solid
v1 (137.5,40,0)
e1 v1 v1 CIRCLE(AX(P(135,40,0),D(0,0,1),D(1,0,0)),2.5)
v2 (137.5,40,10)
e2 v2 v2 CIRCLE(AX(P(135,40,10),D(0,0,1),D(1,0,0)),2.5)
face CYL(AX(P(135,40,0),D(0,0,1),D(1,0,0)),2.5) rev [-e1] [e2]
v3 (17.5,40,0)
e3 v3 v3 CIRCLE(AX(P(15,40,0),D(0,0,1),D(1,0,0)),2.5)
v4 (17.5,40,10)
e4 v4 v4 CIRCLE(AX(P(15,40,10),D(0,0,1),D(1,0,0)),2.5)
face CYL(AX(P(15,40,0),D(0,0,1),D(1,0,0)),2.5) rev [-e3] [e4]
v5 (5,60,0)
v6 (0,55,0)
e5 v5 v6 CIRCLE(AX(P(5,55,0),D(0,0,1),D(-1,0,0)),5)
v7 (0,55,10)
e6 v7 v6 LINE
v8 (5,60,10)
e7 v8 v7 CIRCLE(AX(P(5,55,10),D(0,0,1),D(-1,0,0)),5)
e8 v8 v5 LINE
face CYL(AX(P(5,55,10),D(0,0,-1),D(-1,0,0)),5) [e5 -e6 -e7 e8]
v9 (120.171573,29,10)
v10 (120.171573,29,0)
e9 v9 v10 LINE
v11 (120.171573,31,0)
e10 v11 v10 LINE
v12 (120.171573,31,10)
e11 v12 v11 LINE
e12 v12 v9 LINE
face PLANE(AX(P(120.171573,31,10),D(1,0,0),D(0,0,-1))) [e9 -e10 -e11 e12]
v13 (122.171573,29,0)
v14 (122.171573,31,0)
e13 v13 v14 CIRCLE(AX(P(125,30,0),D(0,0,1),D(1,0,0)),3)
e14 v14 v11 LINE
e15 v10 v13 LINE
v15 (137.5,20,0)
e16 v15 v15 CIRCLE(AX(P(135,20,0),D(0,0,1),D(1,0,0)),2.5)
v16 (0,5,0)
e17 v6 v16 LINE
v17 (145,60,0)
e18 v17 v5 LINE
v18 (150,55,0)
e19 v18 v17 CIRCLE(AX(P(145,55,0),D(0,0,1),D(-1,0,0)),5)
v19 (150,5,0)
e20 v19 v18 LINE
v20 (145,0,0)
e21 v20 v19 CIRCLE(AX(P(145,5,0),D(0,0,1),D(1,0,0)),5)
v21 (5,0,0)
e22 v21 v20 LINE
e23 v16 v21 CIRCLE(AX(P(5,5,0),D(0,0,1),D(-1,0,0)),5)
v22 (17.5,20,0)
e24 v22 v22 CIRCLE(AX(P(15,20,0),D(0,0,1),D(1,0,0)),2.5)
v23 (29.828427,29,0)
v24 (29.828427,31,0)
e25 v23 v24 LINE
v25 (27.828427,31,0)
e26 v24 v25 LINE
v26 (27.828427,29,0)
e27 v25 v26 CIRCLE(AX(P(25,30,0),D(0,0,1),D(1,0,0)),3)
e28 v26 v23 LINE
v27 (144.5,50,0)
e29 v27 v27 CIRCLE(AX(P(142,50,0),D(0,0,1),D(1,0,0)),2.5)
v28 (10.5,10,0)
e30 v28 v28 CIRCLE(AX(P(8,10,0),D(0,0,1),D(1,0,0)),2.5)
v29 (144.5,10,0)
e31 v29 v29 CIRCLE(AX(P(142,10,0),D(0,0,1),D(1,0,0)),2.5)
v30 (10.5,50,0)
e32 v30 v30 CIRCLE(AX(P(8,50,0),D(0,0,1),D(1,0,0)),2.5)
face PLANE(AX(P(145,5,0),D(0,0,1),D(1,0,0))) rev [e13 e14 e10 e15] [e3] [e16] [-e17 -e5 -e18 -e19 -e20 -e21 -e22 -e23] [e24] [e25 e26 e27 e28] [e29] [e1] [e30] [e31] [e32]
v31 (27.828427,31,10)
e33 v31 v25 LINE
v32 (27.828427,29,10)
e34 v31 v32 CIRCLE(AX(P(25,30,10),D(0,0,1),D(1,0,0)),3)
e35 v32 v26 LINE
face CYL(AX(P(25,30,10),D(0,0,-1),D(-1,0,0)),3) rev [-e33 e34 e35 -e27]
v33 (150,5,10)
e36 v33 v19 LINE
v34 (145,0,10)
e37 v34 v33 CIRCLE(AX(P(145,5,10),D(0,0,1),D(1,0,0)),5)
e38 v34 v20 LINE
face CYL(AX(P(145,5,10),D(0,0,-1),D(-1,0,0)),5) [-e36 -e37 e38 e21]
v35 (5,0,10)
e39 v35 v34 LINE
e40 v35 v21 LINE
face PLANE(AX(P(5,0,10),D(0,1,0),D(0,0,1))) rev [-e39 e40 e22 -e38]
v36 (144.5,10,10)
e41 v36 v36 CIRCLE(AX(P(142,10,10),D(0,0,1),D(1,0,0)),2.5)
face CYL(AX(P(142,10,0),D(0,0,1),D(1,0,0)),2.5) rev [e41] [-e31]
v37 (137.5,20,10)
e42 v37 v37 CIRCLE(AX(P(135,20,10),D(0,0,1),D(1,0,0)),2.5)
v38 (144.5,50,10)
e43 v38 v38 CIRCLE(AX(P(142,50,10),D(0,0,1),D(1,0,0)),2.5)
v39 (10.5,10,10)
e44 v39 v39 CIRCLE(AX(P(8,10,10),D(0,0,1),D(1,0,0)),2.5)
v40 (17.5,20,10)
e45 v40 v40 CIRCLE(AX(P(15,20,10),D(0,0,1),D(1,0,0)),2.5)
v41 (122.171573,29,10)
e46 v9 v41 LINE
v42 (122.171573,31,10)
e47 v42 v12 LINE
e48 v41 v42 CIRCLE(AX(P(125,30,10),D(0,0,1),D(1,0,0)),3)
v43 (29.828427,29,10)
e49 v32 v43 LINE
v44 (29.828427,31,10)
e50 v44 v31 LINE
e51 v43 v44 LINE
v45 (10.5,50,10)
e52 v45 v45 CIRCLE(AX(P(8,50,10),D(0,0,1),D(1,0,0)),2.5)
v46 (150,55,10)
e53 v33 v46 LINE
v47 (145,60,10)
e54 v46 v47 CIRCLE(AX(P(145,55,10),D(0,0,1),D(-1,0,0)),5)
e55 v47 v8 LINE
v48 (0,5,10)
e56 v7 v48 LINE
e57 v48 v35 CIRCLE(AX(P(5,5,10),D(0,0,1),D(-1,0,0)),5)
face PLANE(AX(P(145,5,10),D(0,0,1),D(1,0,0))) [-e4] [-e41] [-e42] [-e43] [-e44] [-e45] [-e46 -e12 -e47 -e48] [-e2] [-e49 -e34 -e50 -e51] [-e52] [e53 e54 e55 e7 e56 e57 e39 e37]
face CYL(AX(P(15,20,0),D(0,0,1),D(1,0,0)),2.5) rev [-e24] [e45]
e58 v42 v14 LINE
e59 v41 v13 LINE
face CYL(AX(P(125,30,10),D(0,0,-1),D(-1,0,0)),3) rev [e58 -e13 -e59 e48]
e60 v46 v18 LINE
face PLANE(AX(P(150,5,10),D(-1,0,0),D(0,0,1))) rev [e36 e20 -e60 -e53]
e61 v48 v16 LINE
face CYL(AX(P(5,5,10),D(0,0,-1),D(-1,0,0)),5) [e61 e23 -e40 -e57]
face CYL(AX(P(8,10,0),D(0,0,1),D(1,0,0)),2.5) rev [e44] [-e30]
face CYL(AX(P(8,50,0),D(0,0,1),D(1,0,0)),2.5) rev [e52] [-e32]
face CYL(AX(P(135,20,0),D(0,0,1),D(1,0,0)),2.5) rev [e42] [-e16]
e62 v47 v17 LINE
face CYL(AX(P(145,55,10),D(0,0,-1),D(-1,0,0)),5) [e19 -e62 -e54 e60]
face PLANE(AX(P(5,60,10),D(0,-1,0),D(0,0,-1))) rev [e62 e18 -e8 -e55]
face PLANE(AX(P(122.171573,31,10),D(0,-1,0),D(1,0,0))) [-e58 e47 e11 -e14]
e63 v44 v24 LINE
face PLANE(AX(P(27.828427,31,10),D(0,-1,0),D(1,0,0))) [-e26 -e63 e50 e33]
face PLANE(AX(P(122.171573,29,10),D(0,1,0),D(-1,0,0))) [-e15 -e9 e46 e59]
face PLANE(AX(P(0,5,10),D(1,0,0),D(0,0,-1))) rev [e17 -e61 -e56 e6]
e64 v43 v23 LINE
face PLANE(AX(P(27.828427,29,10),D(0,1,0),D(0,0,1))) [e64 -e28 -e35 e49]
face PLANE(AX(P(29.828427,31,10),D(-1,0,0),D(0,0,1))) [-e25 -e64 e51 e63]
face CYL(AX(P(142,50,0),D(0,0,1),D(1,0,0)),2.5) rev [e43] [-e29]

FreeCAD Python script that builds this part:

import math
import FreeCAD as App
import Part
import Sketcher
from FreeCAD import Vector

doc = App.newDocument("Part")
body = doc.addObject("PartDesign::Body", "Body")

# Sketch on XY plane
sketch1 = doc.addObject("Sketcher::SketchObject", "Sketch")
body.addObject(sketch1)
sketch1.AttachmentSupport = (doc.XY_Plane, [""])
sketch1.MapMode = "FlatFace"
sketch1.addGeometry([
    Part.LineSegment(Vector(5, 0, 0), Vector(145, 0, 0)),  # 0
    Part.ArcOfCircle(Part.Circle(Vector(145, 5, 0), Vector(0, 0, 1), 5), math.radians(-90), math.radians(0)),  # 1
    Part.LineSegment(Vector(150, 5, 0), Vector(150, 55, 0)),  # 2
    Part.ArcOfCircle(Part.Circle(Vector(145, 55, 0), Vector(0, 0, 1), 5), math.radians(0), math.radians(90)),  # 3
    Part.LineSegment(Vector(145, 60, 0), Vector(5, 60, 0)),  # 4
    Part.ArcOfCircle(Part.Circle(Vector(5, 55, 0), Vector(0, 0, 1), 5), math.radians(90), math.radians(180)),  # 5
    Part.LineSegment(Vector(0, 55, 0), Vector(0, 5, 0)),  # 6
    Part.ArcOfCircle(Part.Circle(Vector(5, 5, 0), Vector(0, 0, 1), 5), math.radians(180), math.radians(270)),  # 7
    Part.ArcOfCircle(Part.Circle(Vector(25, 30, 0), Vector(0, 0, 1), 3), math.radians(19), math.radians(341)),  # 8
    Part.LineSegment(Vector(27.8, 31, 0), Vector(29.8, 31, 0)),  # 9
    Part.LineSegment(Vector(29.8, 31, 0), Vector(29.8, 29, 0)),  # 10
    Part.LineSegment(Vector(29.8, 29, 0), Vector(27.8, 29, 0)),  # 11
    Part.LineSegment(Vector(120.2, 31, 0), Vector(122.2, 31, 0)),  # 12
    Part.ArcOfCircle(Part.Circle(Vector(125, 30, 0), Vector(0, 0, 1), 3), math.radians(-161), math.radians(161)),  # 13
    Part.LineSegment(Vector(122.2, 29, 0), Vector(120.2, 29, 0)),  # 14
    Part.LineSegment(Vector(120.2, 29, 0), Vector(120.2, 31, 0)),  # 15
], False)
sketch1.addConstraint([
    Sketcher.Constraint("Tangent", 0, 2, 1, 1),
    Sketcher.Constraint("Tangent", 1, 2, 2, 1),
    Sketcher.Constraint("Tangent", 2, 2, 3, 1),
    Sketcher.Constraint("Tangent", 3, 2, 4, 1),
    Sketcher.Constraint("Tangent", 4, 2, 5, 1),
    Sketcher.Constraint("Tangent", 5, 2, 6, 1),
    Sketcher.Constraint("Tangent", 6, 2, 7, 1),
    Sketcher.Constraint("Tangent", 7, 2, 0, 1),
    Sketcher.Constraint("Coincident", 8, 1, 9, 1),
    Sketcher.Constraint("Coincident", 9, 2, 10, 1),
    Sketcher.Constraint("Coincident", 10, 2, 11, 1),
    Sketcher.Constraint("Coincident", 11, 2, 8, 2),
    Sketcher.Constraint("Coincident", 12, 2, 13, 2),
    Sketcher.Constraint("Coincident", 13, 1, 14, 1),
    Sketcher.Constraint("Coincident", 14, 2, 15, 1),
    Sketcher.Constraint("Coincident", 15, 2, 12, 1),
    Sketcher.Constraint("Horizontal", 0),
    Sketcher.Constraint("Vertical", 2),
    Sketcher.Constraint("Horizontal", 4),
    Sketcher.Constraint("Vertical", 6),
    Sketcher.Constraint("Horizontal", 9),
    Sketcher.Constraint("Vertical", 10),
    Sketcher.Constraint("Horizontal", 11),
    Sketcher.Constraint("Horizontal", 12),
    Sketcher.Constraint("Horizontal", 14),
    Sketcher.Constraint("Vertical", 15),
    Sketcher.Constraint("Equal", 1, 3),
    Sketcher.Constraint("Equal", 3, 5),
    Sketcher.Constraint("Equal", 5, 7),
    Sketcher.Constraint("Equal", 8, 13),
    Sketcher.Constraint("PointOnObject", 0, 2, -1),
    Sketcher.Constraint("PointOnObject", 5, 2, -2),
    Sketcher.Constraint("Horizontal", 8, 3, 13, 3),
    Sketcher.Constraint("Horizontal", 9, 2, 12, 2),
    Sketcher.Constraint("Horizontal", 11, 2, 13, 1),
    Sketcher.Constraint("Vertical", 8, 1, 11, 2),
    Sketcher.Constraint("Equal", 11, 12),
    Sketcher.Constraint("Equal", 14, 10),
    Sketcher.Constraint("Radius", 1, 5.0),
    Sketcher.Constraint("Radius", 8, 3.0),
    Sketcher.Constraint("DistanceX", 0, 1, 0, 2, 140.0),
    Sketcher.Constraint("DistanceX", 9, 1, 9, 2, 2.0),
    Sketcher.Constraint("DistanceY", 2, 1, 2, 2, 50.0),
    Sketcher.Constraint("DistanceX", -1, 1, 8, 3, 25.0),
    Sketcher.Constraint("DistanceY", -1, 1, 8, 3, 30.0),
    Sketcher.Constraint("DistanceX", -1, 1, 13, 3, 125.0),
])
pad1 = doc.addObject("PartDesign::Pad", "Pad")
body.addObject(pad1)
pad1.Profile = sketch1
pad1.Length = 10

# Sketch on XY plane
sketch2 = doc.addObject("Sketcher::SketchObject", "Sketch001")
body.addObject(sketch2)
sketch2.AttachmentSupport = (doc.XY_Plane, [""])
sketch2.MapMode = "FlatFace"
sketch2.AttachmentOffset = App.Placement(Vector(0, 0, 10), App.Rotation())
sketch2.addGeometry([
    Part.Circle(Vector(15, 40, 0), Vector(0, 0, 1), 2.5),
    Part.Circle(Vector(15, 20, 0), Vector(0, 0, 1), 2.5),
    Part.Circle(Vector(135, 40, 0), Vector(0, 0, 1), 2.5),
    Part.Circle(Vector(135, 20, 0), Vector(0, 0, 1), 2.5),
], False)
sketch2.addConstraint([
    Sketcher.Constraint("Equal", 0, 1),
    Sketcher.Constraint("Equal", 1, 2),
    Sketcher.Constraint("Equal", 2, 3),
    Sketcher.Constraint("Horizontal", 0, 3, 2, 3),
    Sketcher.Constraint("Horizontal", 1, 3, 3, 3),
    Sketcher.Constraint("Vertical", 0, 3, 1, 3),
    Sketcher.Constraint("Vertical", 2, 3, 3, 3),
    Sketcher.Constraint("Diameter", 0, 5.0),
    Sketcher.Constraint("DistanceX", -1, 1, 0, 3, 15.0),
    Sketcher.Constraint("DistanceY", -1, 1, 0, 3, 40.0),
    Sketcher.Constraint("DistanceY", -1, 1, 1, 3, 20.0),
    Sketcher.Constraint("DistanceX", -1, 1, 2, 3, 135.0),
])
pocket1 = doc.addObject("PartDesign::Pocket", "Pocket")
body.addObject(pocket1)
pocket1.Profile = sketch2
pocket1.Type = "ThroughAll"

# Sketch on XY plane
sketch3 = doc.addObject("Sketcher::SketchObject", "Sketch002")
body.addObject(sketch3)
sketch3.AttachmentSupport = (doc.XY_Plane, [""])
sketch3.MapMode = "FlatFace"
sketch3.AttachmentOffset = App.Placement(Vector(0, 0, 10), App.Rotation())
sketch3.addGeometry([
    Part.Circle(Vector(8, 50, 0), Vector(0, 0, 1), 2.5),
    Part.Circle(Vector(8, 10, 0), Vector(0, 0, 1), 2.5),
    Part.Circle(Vector(142, 50, 0), Vector(0, 0, 1), 2.5),
    Part.Circle(Vector(142, 10, 0), Vector(0, 0, 1), 2.5),
], False)
sketch3.addConstraint([
    Sketcher.Constraint("Equal", 0, 1),
    Sketcher.Constraint("Equal", 1, 2),
    Sketcher.Constraint("Equal", 2, 3),
    Sketcher.Constraint("Horizontal", 0, 3, 2, 3),
    Sketcher.Constraint("Horizontal", 1, 3, 3, 3),
    Sketcher.Constraint("Vertical", 0, 3, 1, 3),
    Sketcher.Constraint("Vertical", 2, 3, 3, 3),
    Sketcher.Constraint("Diameter", 0, 5.0),
    Sketcher.Constraint("DistanceX", -1, 1, 0, 3, 8.0),
    Sketcher.Constraint("DistanceY", -1, 1, 0, 3, 50.0),
    Sketcher.Constraint("DistanceY", -1, 1, 1, 3, 10.0),
    Sketcher.Constraint("DistanceX", -1, 1, 2, 3, 142.0),
])
pocket2 = doc.addObject("PartDesign::Pocket", "Pocket001")
body.addObject(pocket2)
pocket2.Profile = sketch3
pocket2.Type = "ThroughAll"

doc.recompute()
